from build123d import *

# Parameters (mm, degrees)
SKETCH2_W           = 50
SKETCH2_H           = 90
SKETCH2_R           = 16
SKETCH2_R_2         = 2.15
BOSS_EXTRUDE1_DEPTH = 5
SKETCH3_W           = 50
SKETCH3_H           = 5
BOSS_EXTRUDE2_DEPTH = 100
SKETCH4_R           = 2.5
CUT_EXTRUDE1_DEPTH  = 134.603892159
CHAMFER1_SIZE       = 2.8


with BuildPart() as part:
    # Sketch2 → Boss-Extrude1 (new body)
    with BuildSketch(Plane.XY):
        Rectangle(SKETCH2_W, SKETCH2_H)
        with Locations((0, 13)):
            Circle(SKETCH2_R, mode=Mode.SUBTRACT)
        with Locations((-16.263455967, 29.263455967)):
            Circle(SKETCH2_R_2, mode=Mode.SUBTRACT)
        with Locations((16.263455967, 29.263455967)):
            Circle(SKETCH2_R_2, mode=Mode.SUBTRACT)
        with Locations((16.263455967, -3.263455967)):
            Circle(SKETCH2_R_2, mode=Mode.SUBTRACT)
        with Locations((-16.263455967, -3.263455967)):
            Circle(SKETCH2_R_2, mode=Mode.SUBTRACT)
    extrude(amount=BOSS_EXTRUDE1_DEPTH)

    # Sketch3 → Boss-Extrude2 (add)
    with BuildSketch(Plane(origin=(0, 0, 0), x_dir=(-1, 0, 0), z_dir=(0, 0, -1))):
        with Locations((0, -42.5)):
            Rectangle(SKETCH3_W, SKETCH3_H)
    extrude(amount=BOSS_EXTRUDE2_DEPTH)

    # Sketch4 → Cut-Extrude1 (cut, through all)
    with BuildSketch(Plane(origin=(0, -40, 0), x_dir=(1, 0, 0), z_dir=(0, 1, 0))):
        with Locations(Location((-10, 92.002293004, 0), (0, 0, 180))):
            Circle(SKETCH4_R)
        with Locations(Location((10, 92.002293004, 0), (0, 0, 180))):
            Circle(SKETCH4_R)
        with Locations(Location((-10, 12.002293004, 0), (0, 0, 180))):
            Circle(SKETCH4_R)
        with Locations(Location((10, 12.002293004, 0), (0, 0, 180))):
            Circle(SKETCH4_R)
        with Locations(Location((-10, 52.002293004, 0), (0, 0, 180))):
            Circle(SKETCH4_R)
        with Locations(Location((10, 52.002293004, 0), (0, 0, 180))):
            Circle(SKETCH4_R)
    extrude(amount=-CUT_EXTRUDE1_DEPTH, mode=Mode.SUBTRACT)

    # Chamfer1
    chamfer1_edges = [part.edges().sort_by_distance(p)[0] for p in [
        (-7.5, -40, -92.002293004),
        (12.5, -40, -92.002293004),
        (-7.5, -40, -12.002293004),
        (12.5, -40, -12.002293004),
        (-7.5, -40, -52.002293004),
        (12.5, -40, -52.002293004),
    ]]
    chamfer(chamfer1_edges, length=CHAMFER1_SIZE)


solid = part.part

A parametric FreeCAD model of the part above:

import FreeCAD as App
import Part
import Sketcher

V = App.Vector


def edges_at(feature, points):
    """Names of the edges that pass closest to the given points."""
    edges = feature.Shape.Edges
    near = lambda p: min(range(len(edges)), key=lambda i: edges[i].distToShape(Part.Vertex(*p))[0])
    return sorted({f"Edge{near(p) + 1}" for p in points})


def add_polygon(sketch, points):
    """Adds a closed chain of lines whose ends are joined by coincident constraints."""
    first, n = sketch.GeometryCount, len(points)
    for a, b in zip(points, points[1:] + points[:1]):
        sketch.addGeometry(Part.LineSegment(App.Vector(*a, 0), App.Vector(*b, 0)), False)
    for i in range(n):
        sketch.addConstraint(Sketcher.Constraint("Coincident", first + i, 2, first + (i + 1) % n, 1))

doc = App.newDocument("Part")
body = doc.addObject("PartDesign::Body", "Body")

# Sketch on XY plane
sketch1 = body.newObject("Sketcher::SketchObject", "Sketch")
sketch1.AttachmentSupport = (doc.getObject("XY_Plane"), [""])
sketch1.MapMode = "FlatFace"
add_polygon(sketch1, [(-25, 45), (-25, -45), (25, -45), (25, 45)])  # lines 0-3
sketch1.addGeometry(Part.Circle(V(-16.3, -3.3, 0), V(0, 0, 1), 2.1), False)  # 4
sketch1.addGeometry(Part.Circle(V(16.3, -3.3, 0), V(0, 0, 1), 2.1), False)  # 5
sketch1.addGeometry(Part.Circle(V(0, 13, 0), V(0, 0, 1), 16), False)  # 6
sketch1.addGeometry(Part.Circle(V(-16.3, 29.3, 0), V(0, 0, 1), 2.1), False)  # 7
sketch1.addGeometry(Part.Circle(V(16.3, 29.3, 0), V(0, 0, 1), 2.1), False)  # 8
sketch1.addConstraint(Sketcher.Constraint("Vertical", 0))
sketch1.addConstraint(Sketcher.Constraint("Horizontal", 1))
sketch1.addConstraint(Sketcher.Constraint("Vertical", 2))
sketch1.addConstraint(Sketcher.Constraint("Horizontal", 3))
sketch1.addConstraint(Sketcher.Constraint("Equal", 4, 5))
sketch1.addConstraint(Sketcher.Constraint("Equal", 5, 7))
sketch1.addConstraint(Sketcher.Constraint("Equal", 7, 8))
sketch1.addConstraint(Sketcher.Constraint("Symmetric", 0, 2, 2, 2, -1, 1))
sketch1.addConstraint(Sketcher.Constraint("Symmetric", 4, 3, 5, 3, -2))
sketch1.addConstraint(Sketcher.Constraint("Symmetric", 7, 3, 8, 3, -2))
sketch1.addConstraint(Sketcher.Constraint("PointOnObject", 6, 3, -2))
sketch1.addConstraint(Sketcher.Constraint("Vertical", 4, 3, 7, 3))
sketch1.addConstraint(Sketcher.Constraint("Diameter", 6, 32.0))
sketch1.addConstraint(Sketcher.Constraint("Diameter", 4, 4.3))
sketch1.addConstraint(Sketcher.Constraint("DistanceX", 1, 1, 1, 2, 50.0))
sketch1.addConstraint(Sketcher.Constraint("DistanceY", 0, 2, 0, 1, 90.0))
sketch1.addConstraint(Sketcher.Constraint("DistanceY", -1, 1, 6, 3, 13.0))
sketch1.addConstraint(Sketcher.Constraint("DistanceX", 4, 3, 5, 3, 32.526912))
sketch1.addConstraint(Sketcher.Constraint("DistanceY", 4, 3, 7, 3, 32.526912))
sketch1.addConstraint(Sketcher.Constraint("DistanceY", 4, 3, -1, 1, 3.263456))
pad1 = body.newObject("PartDesign::Pad", "Pad")
pad1.Profile = sketch1
pad1.Length = 5

# Sketch on XY plane
sketch2 = body.newObject("Sketcher::SketchObject", "Sketch001")
sketch2.AttachmentSupport = (doc.getObject("XY_Plane"), [""])
sketch2.MapMode = "FlatFace"
add_polygon(sketch2, [(25, -40), (25, -45), (-25, -45), (-25, -40)])  # lines 0-3
sketch2.addConstraint(Sketcher.Constraint("Vertical", 0))
sketch2.addConstraint(Sketcher.Constraint("Horizontal", 1))
sketch2.addConstraint(Sketcher.Constraint("Vertical", 2))
sketch2.addConstraint(Sketcher.Constraint("Horizontal", 3))
sketch2.addConstraint(Sketcher.Constraint("DistanceX", 1, 2, 1, 1, 50.0))
sketch2.addConstraint(Sketcher.Constraint("DistanceY", 0, 2, 0, 1, 5.0))
sketch2.addConstraint(Sketcher.Constraint("DistanceX", -1, 1, 0, 2, 25.0))
sketch2.addConstraint(Sketcher.Constraint("DistanceY", 0, 2, -1, 1, 45.0))
pad2 = body.newObject("PartDesign::Pad", "Pad001")
pad2.Profile = sketch2
pad2.Length = 100
pad2.Reversed = True

# Sketch on XZ plane
sketch3 = body.newObject("Sketcher::SketchObject", "Sketch002")
sketch3.AttachmentSupport = (doc.getObject("XZ_Plane"), [""])
sketch3.MapMode = "FlatFace"
sketch3.AttachmentOffset = App.Placement(V(0, 0, 40), App.Rotation())
sketch3.addGeometry(Part.Circle(V(-10, -92, 0), V(0, 0, 1), 2.5), False)
sketch3.addGeometry(Part.Circle(V(10, -92, 0), V(0, 0, 1), 2.5), False)
sketch3.addGeometry(Part.Circle(V(-10, -12, 0), V(0, 0, 1), 2.5), False)
sketch3.addGeometry(Part.Circle(V(10, -12, 0), V(0, 0, 1), 2.5), False)
sketch3.addGeometry(Part.Circle(V(-10, -52, 0), V(0, 0, 1), 2.5), False)
sketch3.addGeometry(Part.Circle(V(10, -52, 0), V(0, 0, 1), 2.5), False)
sketch3.addConstraint(Sketcher.Constraint("Equal", 0, 1))
sketch3.addConstraint(Sketcher.Constraint("Equal", 1, 2))
sketch3.addConstraint(Sketcher.Constraint("Equal", 2, 3))
sketch3.addConstraint(Sketcher.Constraint("Equal", 3, 4))
sketch3.addConstraint(Sketcher.Constraint("Equal", 4, 5))
sketch3.addConstraint(Sketcher.Constraint("Symmetric", 0, 3, 1, 3, -2))
sketch3.addConstraint(Sketcher.Constraint("Symmetric", 2, 3, 3, 3, -2))
sketch3.addConstraint(Sketcher.Constraint("Symmetric", 4, 3, 5, 3, -2))
sketch3.addConstraint(Sketcher.Constraint("Vertical", 0, 3, 2, 3))
sketch3.addConstraint(Sketcher.Constraint("Vertical", 2, 3, 4, 3))
sketch3.addConstraint(Sketcher.Constraint("Diameter", 0, 5.0))
sketch3.addConstraint(Sketcher.Constraint("DistanceX", 0, 3, -1, 1, 10.0))
sketch3.addConstraint(Sketcher.Constraint("DistanceY", 0, 3, 2, 3, 80.0))
sketch3.addConstraint(Sketcher.Constraint("DistanceY", 0, 3, 4, 3, 40.0))
sketch3.addConstraint(Sketcher.Constraint("DistanceY", 0, 3, -1, 1, 92.002293))
pocket1 = body.newObject("PartDesign::Pocket", "Pocket")
pocket1.Profile = sketch3
pocket1.Type = "ThroughAll"
pocket1.Reversed = True
doc.recompute()

chamfer = body.newObject("PartDesign::Chamfer", "Chamfer")
chamfer.Base = (pocket1, edges_at(pocket1, [
    (-7.5, -40, -92.002),
    (12.5, -40, -92.002),
    (-7.5, -40, -12.002),
    (12.5, -40, -12.002),
    (-7.5, -40, -52.002),
    (12.5, -40, -52.002),
]))
chamfer.Size = 2.8

doc.recompute()
